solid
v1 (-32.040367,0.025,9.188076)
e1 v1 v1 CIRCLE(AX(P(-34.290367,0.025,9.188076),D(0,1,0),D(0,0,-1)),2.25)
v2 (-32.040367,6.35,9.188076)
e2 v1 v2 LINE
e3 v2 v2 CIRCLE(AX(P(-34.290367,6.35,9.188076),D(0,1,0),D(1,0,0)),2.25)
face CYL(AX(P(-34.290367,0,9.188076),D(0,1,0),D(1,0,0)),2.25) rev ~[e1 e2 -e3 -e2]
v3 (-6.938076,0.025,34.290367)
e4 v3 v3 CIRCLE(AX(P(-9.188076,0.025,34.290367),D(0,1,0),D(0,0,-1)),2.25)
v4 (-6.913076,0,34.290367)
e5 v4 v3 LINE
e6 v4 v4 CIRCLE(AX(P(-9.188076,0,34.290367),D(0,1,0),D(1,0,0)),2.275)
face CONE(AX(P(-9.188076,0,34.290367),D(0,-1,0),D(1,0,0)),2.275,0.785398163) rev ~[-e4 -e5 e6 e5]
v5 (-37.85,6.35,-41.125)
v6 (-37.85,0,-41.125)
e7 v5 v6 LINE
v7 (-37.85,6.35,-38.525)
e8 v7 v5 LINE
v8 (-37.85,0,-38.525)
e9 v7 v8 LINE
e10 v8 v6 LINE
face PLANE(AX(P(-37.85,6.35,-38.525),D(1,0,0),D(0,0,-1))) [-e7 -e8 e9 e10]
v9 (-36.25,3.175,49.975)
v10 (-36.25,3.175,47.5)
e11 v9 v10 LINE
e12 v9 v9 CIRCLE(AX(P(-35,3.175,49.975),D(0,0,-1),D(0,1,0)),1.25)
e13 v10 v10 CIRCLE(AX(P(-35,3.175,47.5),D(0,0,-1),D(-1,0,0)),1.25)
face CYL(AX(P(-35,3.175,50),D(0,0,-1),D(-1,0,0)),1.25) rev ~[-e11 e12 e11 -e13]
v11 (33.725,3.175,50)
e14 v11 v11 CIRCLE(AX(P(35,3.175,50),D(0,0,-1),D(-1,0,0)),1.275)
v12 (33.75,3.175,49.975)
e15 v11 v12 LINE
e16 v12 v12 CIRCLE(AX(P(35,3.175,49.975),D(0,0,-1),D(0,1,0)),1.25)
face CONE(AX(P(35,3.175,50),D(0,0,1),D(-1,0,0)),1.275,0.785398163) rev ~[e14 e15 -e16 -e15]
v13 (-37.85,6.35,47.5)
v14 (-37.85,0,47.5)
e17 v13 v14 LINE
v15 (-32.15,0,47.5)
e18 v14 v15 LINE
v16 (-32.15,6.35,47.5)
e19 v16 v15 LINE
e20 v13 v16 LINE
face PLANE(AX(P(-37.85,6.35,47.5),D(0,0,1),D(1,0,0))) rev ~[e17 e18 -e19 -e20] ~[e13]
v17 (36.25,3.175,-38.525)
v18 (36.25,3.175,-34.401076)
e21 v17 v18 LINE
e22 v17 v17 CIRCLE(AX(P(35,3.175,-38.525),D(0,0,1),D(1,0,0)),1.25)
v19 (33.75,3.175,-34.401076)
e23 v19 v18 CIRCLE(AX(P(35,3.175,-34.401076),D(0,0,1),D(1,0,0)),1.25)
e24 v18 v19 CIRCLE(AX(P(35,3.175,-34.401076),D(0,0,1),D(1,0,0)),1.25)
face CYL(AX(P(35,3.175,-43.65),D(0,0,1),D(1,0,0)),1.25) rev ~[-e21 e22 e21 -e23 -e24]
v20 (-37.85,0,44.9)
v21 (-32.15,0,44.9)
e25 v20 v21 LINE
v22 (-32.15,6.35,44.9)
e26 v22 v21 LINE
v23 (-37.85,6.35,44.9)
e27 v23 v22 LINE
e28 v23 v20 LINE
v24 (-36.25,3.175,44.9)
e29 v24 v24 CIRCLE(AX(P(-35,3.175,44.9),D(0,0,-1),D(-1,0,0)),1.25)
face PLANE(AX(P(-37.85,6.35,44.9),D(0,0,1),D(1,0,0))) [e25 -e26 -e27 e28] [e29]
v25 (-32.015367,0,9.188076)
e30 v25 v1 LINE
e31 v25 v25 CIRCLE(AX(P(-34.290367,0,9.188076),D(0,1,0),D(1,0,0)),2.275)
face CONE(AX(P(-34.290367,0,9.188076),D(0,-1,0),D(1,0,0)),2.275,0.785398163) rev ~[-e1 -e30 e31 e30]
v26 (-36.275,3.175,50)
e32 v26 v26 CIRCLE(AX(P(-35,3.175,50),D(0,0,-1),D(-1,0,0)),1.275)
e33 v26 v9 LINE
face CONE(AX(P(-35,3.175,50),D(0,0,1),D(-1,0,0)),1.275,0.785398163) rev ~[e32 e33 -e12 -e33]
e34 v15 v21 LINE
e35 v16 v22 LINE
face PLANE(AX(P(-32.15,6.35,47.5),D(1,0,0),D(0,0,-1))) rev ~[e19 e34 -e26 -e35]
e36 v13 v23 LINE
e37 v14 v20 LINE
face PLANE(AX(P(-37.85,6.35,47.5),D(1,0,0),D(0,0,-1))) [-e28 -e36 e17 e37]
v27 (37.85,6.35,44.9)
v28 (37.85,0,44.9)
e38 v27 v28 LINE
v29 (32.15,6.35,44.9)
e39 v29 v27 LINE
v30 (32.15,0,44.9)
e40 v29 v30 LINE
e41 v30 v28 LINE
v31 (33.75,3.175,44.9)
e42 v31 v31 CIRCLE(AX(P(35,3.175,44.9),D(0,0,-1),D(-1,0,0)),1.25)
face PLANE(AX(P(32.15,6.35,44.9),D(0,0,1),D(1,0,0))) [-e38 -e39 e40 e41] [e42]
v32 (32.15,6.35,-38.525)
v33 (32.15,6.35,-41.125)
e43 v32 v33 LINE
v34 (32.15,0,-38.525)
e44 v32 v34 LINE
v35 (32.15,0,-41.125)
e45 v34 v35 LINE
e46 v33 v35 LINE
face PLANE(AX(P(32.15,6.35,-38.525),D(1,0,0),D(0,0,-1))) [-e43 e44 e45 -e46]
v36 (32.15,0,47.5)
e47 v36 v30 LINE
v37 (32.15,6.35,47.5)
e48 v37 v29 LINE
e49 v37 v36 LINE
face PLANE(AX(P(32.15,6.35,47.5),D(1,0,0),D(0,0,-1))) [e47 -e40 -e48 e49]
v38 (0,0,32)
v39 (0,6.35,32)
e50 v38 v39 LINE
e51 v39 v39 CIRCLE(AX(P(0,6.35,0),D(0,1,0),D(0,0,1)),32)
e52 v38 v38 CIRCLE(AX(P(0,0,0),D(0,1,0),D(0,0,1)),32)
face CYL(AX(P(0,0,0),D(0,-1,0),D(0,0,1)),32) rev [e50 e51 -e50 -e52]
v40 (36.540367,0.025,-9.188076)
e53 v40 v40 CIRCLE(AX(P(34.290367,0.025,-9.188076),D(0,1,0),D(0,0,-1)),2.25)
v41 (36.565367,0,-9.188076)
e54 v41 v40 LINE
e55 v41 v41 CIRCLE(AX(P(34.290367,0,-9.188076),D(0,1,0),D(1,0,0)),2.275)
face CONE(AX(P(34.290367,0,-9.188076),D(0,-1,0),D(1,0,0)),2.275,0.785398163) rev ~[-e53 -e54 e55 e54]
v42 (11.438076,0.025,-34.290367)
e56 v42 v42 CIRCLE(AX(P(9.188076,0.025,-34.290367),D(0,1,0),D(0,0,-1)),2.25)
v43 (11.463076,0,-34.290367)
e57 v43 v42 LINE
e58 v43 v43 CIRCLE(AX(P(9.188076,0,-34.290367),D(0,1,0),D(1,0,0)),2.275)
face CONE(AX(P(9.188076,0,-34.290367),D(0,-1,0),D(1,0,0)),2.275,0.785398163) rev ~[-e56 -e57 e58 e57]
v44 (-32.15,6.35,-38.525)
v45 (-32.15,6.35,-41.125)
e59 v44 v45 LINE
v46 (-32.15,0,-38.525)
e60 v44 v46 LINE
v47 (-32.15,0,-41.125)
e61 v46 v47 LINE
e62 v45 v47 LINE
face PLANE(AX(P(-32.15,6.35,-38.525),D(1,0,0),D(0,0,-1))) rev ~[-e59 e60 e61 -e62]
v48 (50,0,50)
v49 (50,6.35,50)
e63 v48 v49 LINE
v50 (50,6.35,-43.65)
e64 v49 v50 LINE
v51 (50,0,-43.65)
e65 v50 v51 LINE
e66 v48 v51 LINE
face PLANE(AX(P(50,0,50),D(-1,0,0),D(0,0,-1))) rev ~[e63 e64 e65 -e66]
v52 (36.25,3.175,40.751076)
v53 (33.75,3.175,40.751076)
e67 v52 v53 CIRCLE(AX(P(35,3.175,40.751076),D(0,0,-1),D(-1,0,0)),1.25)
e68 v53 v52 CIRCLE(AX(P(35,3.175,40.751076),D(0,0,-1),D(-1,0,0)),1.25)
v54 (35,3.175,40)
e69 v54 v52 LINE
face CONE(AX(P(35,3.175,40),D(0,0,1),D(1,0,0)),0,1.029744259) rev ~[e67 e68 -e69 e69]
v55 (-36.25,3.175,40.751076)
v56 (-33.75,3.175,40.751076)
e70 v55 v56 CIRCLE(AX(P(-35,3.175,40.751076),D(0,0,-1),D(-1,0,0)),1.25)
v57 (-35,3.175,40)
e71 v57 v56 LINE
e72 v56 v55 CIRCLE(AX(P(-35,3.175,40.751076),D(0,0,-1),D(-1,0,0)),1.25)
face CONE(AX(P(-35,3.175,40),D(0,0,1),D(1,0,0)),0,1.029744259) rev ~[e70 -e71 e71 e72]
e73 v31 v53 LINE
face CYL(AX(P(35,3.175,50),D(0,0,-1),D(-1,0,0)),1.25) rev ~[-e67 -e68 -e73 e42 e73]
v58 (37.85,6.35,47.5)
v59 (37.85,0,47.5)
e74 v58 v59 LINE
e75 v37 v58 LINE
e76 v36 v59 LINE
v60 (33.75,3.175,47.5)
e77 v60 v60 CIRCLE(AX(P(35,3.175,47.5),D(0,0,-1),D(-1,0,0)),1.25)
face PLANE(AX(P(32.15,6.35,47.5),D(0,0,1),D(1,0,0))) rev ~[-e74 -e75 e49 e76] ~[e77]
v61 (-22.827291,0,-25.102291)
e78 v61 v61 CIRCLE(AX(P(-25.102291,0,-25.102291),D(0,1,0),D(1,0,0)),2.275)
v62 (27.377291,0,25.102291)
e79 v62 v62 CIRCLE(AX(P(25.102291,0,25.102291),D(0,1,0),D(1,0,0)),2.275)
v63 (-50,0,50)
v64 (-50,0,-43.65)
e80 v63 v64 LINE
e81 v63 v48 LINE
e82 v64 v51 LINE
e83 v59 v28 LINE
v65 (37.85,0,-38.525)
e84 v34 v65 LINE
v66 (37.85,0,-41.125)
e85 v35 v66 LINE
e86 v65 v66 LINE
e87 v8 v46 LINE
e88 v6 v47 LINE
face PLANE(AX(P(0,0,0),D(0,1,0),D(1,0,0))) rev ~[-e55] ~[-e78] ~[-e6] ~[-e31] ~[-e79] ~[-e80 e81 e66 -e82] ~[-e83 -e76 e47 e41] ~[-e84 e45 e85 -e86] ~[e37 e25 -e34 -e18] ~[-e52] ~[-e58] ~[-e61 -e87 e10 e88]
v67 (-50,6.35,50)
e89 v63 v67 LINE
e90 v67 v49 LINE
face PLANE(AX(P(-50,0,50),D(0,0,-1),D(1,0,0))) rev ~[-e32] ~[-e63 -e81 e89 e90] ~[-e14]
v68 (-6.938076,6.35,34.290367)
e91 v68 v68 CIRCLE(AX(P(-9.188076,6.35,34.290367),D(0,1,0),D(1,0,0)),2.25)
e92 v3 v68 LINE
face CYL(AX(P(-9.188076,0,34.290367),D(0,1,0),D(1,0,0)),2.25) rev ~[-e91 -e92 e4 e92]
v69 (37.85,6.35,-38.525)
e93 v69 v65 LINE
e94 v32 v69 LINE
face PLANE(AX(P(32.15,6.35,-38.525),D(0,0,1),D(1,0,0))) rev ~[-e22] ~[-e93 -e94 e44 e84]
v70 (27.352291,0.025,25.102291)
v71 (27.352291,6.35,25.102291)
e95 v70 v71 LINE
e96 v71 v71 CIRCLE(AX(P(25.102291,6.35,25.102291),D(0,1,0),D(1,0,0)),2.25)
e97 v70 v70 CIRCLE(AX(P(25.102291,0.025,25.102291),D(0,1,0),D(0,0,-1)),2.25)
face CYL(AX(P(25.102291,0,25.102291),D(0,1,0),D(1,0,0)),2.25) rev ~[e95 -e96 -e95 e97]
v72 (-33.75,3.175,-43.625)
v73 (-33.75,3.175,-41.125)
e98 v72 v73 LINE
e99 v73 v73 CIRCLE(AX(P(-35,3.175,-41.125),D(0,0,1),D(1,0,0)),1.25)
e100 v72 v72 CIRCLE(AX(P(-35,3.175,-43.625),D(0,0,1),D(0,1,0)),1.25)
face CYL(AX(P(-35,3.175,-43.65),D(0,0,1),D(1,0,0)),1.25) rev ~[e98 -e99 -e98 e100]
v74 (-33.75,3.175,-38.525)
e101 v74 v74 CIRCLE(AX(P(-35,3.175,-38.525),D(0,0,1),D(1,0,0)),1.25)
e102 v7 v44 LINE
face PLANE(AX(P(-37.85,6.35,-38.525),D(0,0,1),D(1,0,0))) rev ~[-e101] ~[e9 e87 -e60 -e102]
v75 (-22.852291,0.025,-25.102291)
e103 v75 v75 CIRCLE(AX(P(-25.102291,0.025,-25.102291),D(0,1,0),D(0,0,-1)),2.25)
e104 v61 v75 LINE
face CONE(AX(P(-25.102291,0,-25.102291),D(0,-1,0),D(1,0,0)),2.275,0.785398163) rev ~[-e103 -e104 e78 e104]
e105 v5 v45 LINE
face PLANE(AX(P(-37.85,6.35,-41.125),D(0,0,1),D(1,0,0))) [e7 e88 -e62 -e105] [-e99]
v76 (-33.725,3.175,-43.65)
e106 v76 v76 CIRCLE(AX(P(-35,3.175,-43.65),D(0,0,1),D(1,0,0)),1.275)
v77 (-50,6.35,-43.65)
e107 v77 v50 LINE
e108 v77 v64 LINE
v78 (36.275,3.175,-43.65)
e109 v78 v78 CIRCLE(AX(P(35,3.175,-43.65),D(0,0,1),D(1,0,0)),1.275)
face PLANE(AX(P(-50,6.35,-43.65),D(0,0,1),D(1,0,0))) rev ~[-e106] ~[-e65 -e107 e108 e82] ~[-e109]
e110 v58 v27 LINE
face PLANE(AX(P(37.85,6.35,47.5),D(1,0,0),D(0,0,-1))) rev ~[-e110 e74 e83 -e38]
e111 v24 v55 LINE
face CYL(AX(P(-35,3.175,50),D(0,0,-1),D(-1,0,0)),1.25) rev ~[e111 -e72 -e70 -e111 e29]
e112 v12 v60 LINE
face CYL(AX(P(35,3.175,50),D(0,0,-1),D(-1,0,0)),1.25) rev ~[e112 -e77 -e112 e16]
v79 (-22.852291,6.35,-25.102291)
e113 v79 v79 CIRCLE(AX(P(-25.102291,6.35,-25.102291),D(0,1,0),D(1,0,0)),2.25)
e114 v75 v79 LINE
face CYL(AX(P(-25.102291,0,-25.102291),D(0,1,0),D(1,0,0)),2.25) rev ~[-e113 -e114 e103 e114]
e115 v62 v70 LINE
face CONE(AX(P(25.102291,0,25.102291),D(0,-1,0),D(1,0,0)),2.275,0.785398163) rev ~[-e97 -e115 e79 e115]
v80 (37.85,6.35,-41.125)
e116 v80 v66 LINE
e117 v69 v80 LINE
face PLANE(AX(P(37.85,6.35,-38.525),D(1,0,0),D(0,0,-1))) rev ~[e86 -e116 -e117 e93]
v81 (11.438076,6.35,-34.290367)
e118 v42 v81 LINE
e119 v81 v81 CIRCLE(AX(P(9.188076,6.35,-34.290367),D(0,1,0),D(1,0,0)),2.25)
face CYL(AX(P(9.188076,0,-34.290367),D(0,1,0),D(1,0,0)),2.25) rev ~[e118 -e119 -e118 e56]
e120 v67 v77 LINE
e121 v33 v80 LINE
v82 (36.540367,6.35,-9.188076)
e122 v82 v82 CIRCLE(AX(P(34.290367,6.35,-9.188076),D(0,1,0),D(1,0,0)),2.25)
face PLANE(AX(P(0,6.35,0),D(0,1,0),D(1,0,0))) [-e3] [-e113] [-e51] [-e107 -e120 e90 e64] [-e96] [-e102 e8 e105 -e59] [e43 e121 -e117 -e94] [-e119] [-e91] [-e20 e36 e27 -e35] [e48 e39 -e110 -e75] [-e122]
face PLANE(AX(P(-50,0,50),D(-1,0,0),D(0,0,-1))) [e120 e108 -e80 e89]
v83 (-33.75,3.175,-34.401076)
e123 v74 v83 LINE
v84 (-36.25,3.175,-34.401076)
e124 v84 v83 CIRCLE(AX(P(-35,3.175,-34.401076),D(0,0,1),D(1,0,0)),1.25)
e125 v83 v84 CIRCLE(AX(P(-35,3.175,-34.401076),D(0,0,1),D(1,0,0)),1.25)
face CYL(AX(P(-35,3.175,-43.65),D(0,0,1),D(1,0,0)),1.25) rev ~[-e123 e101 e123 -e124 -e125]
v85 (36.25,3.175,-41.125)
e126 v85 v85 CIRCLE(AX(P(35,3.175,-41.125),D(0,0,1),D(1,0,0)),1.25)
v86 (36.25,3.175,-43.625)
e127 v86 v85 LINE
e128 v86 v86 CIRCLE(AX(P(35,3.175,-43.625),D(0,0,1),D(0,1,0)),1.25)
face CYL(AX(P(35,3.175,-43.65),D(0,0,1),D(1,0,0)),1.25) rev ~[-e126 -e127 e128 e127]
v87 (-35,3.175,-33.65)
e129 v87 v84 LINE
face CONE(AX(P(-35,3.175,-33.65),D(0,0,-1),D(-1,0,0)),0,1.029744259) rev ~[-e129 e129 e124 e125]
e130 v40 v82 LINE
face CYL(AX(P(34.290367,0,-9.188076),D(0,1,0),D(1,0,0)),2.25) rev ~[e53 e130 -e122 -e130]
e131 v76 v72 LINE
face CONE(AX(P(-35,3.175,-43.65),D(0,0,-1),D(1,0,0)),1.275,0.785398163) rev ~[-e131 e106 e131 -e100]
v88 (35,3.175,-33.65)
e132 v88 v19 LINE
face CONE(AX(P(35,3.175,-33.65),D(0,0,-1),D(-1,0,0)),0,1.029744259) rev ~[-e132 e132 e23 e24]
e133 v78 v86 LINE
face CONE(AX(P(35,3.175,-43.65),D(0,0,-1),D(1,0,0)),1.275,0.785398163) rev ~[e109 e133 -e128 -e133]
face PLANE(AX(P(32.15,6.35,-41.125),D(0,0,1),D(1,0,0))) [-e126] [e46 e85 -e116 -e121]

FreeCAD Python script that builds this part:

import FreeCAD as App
import Part
import Sketcher

V = App.Vector

doc = App.newDocument("Part")
body = doc.addObject("PartDesign::Body", "Body")

sketch1 = doc.addObject("Sketcher::SketchObject", "Sketch")
body.addObject(sketch1)
sketch1.AttachmentSupport = (doc.XZ_Plane, [""])
sketch1.MapMode = "FlatFace"
sketch1.addGeometry([
    Part.LineSegment(V(-50, -50, 0), V(-50, 50, 0)),
    Part.LineSegment(V(-50, 50, 0), V(50, 50, 0)),
    Part.LineSegment(V(50, 50, 0), V(50, -50, 0)),
    Part.LineSegment(V(50, -50, 0), V(-50, -50, 0)),
    Part.Circle(V(0, 0, 0), V(0, 0, 1), 32),
], False)
sketch1.addConstraint([
    Sketcher.Constraint("Coincident", 0, 2, 1, 1),
    Sketcher.Constraint("Coincident", 1, 2, 2, 1),
    Sketcher.Constraint("Coincident", 2, 2, 3, 1),
    Sketcher.Constraint("Coincident", 3, 2, 0, 1),
    Sketcher.Constraint("Vertical", 0),
    Sketcher.Constraint("Horizontal", 1),
    Sketcher.Constraint("Vertical", 2),
    Sketcher.Constraint("Horizontal", 3),
    Sketcher.Constraint("Coincident", 4, 3, -1, 1),
    Sketcher.Constraint("Symmetric", 0, 2, 2, 2, -1, 1),
    Sketcher.Constraint("Equal", 3, 0),
    Sketcher.Constraint("Diameter", 4, 64.0),
    Sketcher.Constraint("DistanceX", 1, 1, 1, 2, 100.0),
])
pad1 = doc.addObject("PartDesign::Pad", "Pad")
body.addObject(pad1)
pad1.Profile = sketch1
pad1.Length = 6.35
pad1.Reversed = True

sketch2 = doc.addObject("Sketcher::SketchObject", "Sketch001")
body.addObject(sketch2)
sketch2.AttachmentSupport = (doc.XZ_Plane, [""])
sketch2.MapMode = "FlatFace"
sketch2.addGeometry([
    Part.Circle(V(9.188076, -34.290367, 0), V(0, 0, 1), 2.25),
    Part.Circle(V(-25.102291, -25.102291, 0), V(0, 0, 1), 2.25),
    Part.Circle(V(-34.290367, 9.188076, 0), V(0, 0, 1), 2.25),
    Part.Circle(V(-9.188076, 34.290367, 0), V(0, 0, 1), 2.25),
    Part.Circle(V(25.102291, 25.102291, 0), V(0, 0, 1), 2.25),
    Part.Circle(V(34.290367, -9.188076, 0), V(0, 0, 1), 2.25),
], False)
sketch2.addConstraint([
    Sketcher.Constraint("Equal", 0, 1),
    Sketcher.Constraint("Equal", 1, 2),
    Sketcher.Constraint("Equal", 2, 3),
    Sketcher.Constraint("Equal", 3, 4),
    Sketcher.Constraint("Equal", 4, 5),
    Sketcher.Constraint("Symmetric", 0, 3, 3, 3, -1, 1),
    Sketcher.Constraint("Symmetric", 1, 3, 4, 3, -1, 1),
    Sketcher.Constraint("Symmetric", 2, 3, 5, 3, -1, 1),
    Sketcher.Constraint("Diameter", 0, 4.5),
    Sketcher.Constraint("DistanceX", 1, 3, -1, 1, 25.102291),
    Sketcher.Constraint("DistanceY", 1, 3, -1, 1, 25.102291),
    Sketcher.Constraint("DistanceX", 2, 3, 3, 3, 25.102291),
    Sketcher.Constraint("DistanceY", 2, 3, 3, 3, 25.102291),
    Sketcher.Constraint("DistanceX", -1, 1, 0, 3, 9.188076),
    Sketcher.Constraint("DistanceY", 0, 3, -1, 1, 34.290367),
])
doc.recompute()
hole = doc.addObject("PartDesign::Hole", "Hole")
body.addObject(hole)
hole.Profile = sketch2
hole.ThreadType = "None"
hole.Diameter = 4.5
hole.DepthType = "ThroughAll"
hole.HoleCutType = "Countersink"
hole.HoleCutDiameter = 4.55
hole.HoleCutCountersinkAngle = 90

sketch3 = doc.addObject("Sketcher::SketchObject", "Sketch002")
body.addObject(sketch3)
sketch3.AttachmentSupport = (doc.XY_Plane, [""])
sketch3.MapMode = "FlatFace"
sketch3.AttachmentOffset = App.Placement(V(0, 0, 50), App.Rotation())
sketch3.addGeometry([
    Part.Circle(V(-35, 3.175, 0), V(0, 0, 1), 1.25),
    Part.Circle(V(35, 3.175, 0), V(0, 0, 1), 1.25),
], False)
sketch3.addConstraint([
    Sketcher.Constraint("Equal", 0, 1),
    Sketcher.Constraint("Symmetric", 0, 3, 1, 3, -2),
    Sketcher.Constraint("Diameter", 0, 2.5),
    Sketcher.Constraint("DistanceX", 0, 3, -1, 1, 35.0),
    Sketcher.Constraint("DistanceY", -1, 1, 0, 3, 3.175),
])
doc.recompute()
hole2 = doc.addObject("PartDesign::Hole", "Hole001")
body.addObject(hole2)
hole2.Profile = sketch3
hole2.ThreadType = "None"
hole2.Diameter = 2.5
hole2.DepthType = "Dimension"
hole2.Depth = 9.248924
hole2.DrillPoint = "Angled"
hole2.DrillPointAngle = 118
hole2.HoleCutType = "Countersink"
hole2.HoleCutDiameter = 2.55
hole2.HoleCutCountersinkAngle = 90

sketch4 = doc.addObject("Sketcher::SketchObject", "Sketch003")
body.addObject(sketch4)
sketch4.AttachmentSupport = (doc.XZ_Plane, [""])
sketch4.MapMode = "FlatFace"
sketch4.AttachmentOffset = App.Placement(V(0, 0, -6.35), App.Rotation())
sketch4.addGeometry([
    Part.LineSegment(V(-50, -50, 0), V(-50, -43.65, 0)),
    Part.LineSegment(V(-50, -43.65, 0), V(50, -43.65, 0)),
    Part.LineSegment(V(50, -43.65, 0), V(50, -50, 0)),
    Part.LineSegment(V(50, -50, 0), V(-50, -50, 0)),
], False)
sketch4.addConstraint([
    Sketcher.Constraint("Coincident", 0, 2, 1, 1),
    Sketcher.Constraint("Coincident", 1, 2, 2, 1),
    Sketcher.Constraint("Coincident", 2, 2, 3, 1),
    Sketcher.Constraint("Coincident", 3, 2, 0, 1),
    Sketcher.Constraint("Vertical", 0),
    Sketcher.Constraint("Horizontal", 1),
    Sketcher.Constraint("Vertical", 2),
    Sketcher.Constraint("Horizontal", 3),
    Sketcher.Constraint("DistanceX", 1, 1, 1, 2, 100.0),
    Sketcher.Constraint("DistanceX", 0, 2, -1, 1, 50.0),
    Sketcher.Constraint("DistanceY", 2, 2, -1, 1, 50.0),
    Sketcher.Constraint("DistanceY", 0, 1, 0, 2, 6.35),
])
pocket1 = doc.addObject("PartDesign::Pocket", "Pocket")
body.addObject(pocket1)
pocket1.Profile = sketch4
pocket1.Length = 10
pocket1.Reversed = True

sketch5 = doc.addObject("Sketcher::SketchObject", "Sketch004")
body.addObject(sketch5)
sketch5.AttachmentSupport = (doc.XY_Plane, [""])
sketch5.MapMode = "FlatFace"
sketch5.AttachmentOffset = App.Placement(V(0, 0, -43.65), App.Rotation())
sketch5.addGeometry([
    Part.Circle(V(35, 3.175, 0), V(0, 0, 1), 1.25),
    Part.Circle(V(-35, 3.175, 0), V(0, 0, 1), 1.25),
], False)
sketch5.addConstraint([
    Sketcher.Constraint("Equal", 0, 1),
    Sketcher.Constraint("Symmetric", 0, 3, 1, 3, -2),
    Sketcher.Constraint("Diameter", 0, 2.5),
    Sketcher.Constraint("DistanceX", -1, 1, 0, 3, 35.0),
    Sketcher.Constraint("DistanceY", -1, 1, 0, 3, 3.175),
])
doc.recompute()
hole3 = doc.addObject("PartDesign::Hole", "Hole002")
body.addObject(hole3)
hole3.Profile = sketch5
hole3.ThreadType = "None"
hole3.Diameter = 2.5
hole3.DepthType = "Dimension"
hole3.Depth = 9.248924
hole3.DrillPoint = "Angled"
hole3.DrillPointAngle = 118
hole3.HoleCutType = "Countersink"
hole3.HoleCutDiameter = 2.55
hole3.HoleCutCountersinkAngle = 90
hole3.Reversed = True

sketch6 = doc.addObject("Sketcher::SketchObject", "Sketch005")
body.addObject(sketch6)
sketch6.AttachmentSupport = (doc.XZ_Plane, [""])
sketch6.MapMode = "FlatFace"
sketch6.AttachmentOffset = App.Placement(V(0, 0, -6.35), App.Rotation())
sketch6.addGeometry([
    Part.LineSegment(V(-37.85, 44.9, 0), V(-37.85, 47.5, 0)),
    Part.LineSegment(V(-37.85, 47.5, 0), V(-32.15, 47.5, 0)),
    Part.LineSegment(V(-32.15, 47.5, 0), V(-32.15, 44.9, 0)),
    Part.LineSegment(V(-32.15, 44.9, 0), V(-37.85, 44.9, 0)),
    Part.LineSegment(V(32.15, 44.9, 0), V(32.15, 47.5, 0)),
    Part.LineSegment(V(32.15, 47.5, 0), V(37.85, 47.5, 0)),
    Part.LineSegment(V(37.85, 47.5, 0), V(37.85, 44.9, 0)),
    Part.LineSegment(V(37.85, 44.9, 0), V(32.15, 44.9, 0)),
    Part.LineSegment(V(32.15, -41.125, 0), V(32.15, -38.525, 0)),
    Part.LineSegment(V(32.15, -38.525, 0), V(37.85, -38.525, 0)),
    Part.LineSegment(V(37.85, -38.525, 0), V(37.85, -41.125, 0)),
    Part.LineSegment(V(37.85, -41.125, 0), V(32.15, -41.125, 0)),
    Part.LineSegment(V(-37.85, -41.125, 0), V(-37.85, -38.525, 0)),
    Part.LineSegment(V(-37.85, -38.525, 0), V(-32.15, -38.525, 0)),
    Part.LineSegment(V(-32.15, -38.525, 0), V(-32.15, -41.125, 0)),
    Part.LineSegment(V(-32.15, -41.125, 0), V(-37.85, -41.125, 0)),
], False)
sketch6.addConstraint([
    Sketcher.Constraint("Coincident", 0, 2, 1, 1),
    Sketcher.Constraint("Coincident", 1, 2, 2, 1),
    Sketcher.Constraint("Coincident", 2, 2, 3, 1),
    Sketcher.Constraint("Coincident", 3, 2, 0, 1),
    Sketcher.Constraint("Coincident", 4, 2, 5, 1),
    Sketcher.Constraint("Coincident", 5, 2, 6, 1),
    Sketcher.Constraint("Coincident", 6, 2, 7, 1),
    Sketcher.Constraint("Coincident", 7, 2, 4, 1),
    Sketcher.Constraint("Coincident", 8, 2, 9, 1),
    Sketcher.Constraint("Coincident", 9, 2, 10, 1),
    Sketcher.Constraint("Coincident", 10, 2, 11, 1),
    Sketcher.Constraint("Coincident", 11, 2, 8, 1),
    Sketcher.Constraint("Coincident", 12, 2, 13, 1),
    Sketcher.Constraint("Coincident", 13, 2, 14, 1),
    Sketcher.Constraint("Coincident", 14, 2, 15, 1),
    Sketcher.Constraint("Coincident", 15, 2, 12, 1),
    Sketcher.Constraint("Vertical", 0),
    Sketcher.Constraint("Horizontal", 1),
    Sketcher.Constraint("Vertical", 2),
    Sketcher.Constraint("Horizontal", 3),
    Sketcher.Constraint("Vertical", 4),
    Sketcher.Constraint("Horizontal", 5),
    Sketcher.Constraint("Vertical", 6),
    Sketcher.Constraint("Horizontal", 7),
    Sketcher.Constraint("Vertical", 8),
    Sketcher.Constraint("Horizontal", 9),
    Sketcher.Constraint("Vertical", 10),
    Sketcher.Constraint("Horizontal", 11),
    Sketcher.Constraint("Vertical", 12),
    Sketcher.Constraint("Horizontal", 13),
    Sketcher.Constraint("Vertical", 14),
    Sketcher.Constraint("Horizontal", 15),
    Sketcher.Constraint("Symmetric", 1, 2, 4, 2, -2),
    Sketcher.Constraint("Symmetric", 3, 2, 6, 2, -2),
    Sketcher.Constraint("Symmetric", 9, 2, 12, 2, -2),
    Sketcher.Constraint("Symmetric", 11, 2, 14, 2, -2),
    Sketcher.Constraint("Vertical", 7, 2, 8, 2),
    Sketcher.Constraint("Vertical", 6, 2, 9, 2),
    Sketcher.Constraint("Equal", 6, 8),
    Sketcher.Constraint("DistanceX", 1, 1, 1, 2, 5.7),
    Sketcher.Constraint("DistanceY", 0, 1, 0, 2, 2.6),
    Sketcher.Constraint("DistanceX", 0, 2, 4, 2, 70.0),
    Sketcher.Constraint("DistanceY", -1, 1, 0, 2, 47.5),
    Sketcher.Constraint("DistanceY", 8, 2, -1, 1, 38.525),
])
pocket2 = doc.addObject("PartDesign::Pocket", "Pocket001")
body.addObject(pocket2)
pocket2.Profile = sketch6
pocket2.Type = "ThroughAll"
pocket2.Reversed = True

doc.recompute()
